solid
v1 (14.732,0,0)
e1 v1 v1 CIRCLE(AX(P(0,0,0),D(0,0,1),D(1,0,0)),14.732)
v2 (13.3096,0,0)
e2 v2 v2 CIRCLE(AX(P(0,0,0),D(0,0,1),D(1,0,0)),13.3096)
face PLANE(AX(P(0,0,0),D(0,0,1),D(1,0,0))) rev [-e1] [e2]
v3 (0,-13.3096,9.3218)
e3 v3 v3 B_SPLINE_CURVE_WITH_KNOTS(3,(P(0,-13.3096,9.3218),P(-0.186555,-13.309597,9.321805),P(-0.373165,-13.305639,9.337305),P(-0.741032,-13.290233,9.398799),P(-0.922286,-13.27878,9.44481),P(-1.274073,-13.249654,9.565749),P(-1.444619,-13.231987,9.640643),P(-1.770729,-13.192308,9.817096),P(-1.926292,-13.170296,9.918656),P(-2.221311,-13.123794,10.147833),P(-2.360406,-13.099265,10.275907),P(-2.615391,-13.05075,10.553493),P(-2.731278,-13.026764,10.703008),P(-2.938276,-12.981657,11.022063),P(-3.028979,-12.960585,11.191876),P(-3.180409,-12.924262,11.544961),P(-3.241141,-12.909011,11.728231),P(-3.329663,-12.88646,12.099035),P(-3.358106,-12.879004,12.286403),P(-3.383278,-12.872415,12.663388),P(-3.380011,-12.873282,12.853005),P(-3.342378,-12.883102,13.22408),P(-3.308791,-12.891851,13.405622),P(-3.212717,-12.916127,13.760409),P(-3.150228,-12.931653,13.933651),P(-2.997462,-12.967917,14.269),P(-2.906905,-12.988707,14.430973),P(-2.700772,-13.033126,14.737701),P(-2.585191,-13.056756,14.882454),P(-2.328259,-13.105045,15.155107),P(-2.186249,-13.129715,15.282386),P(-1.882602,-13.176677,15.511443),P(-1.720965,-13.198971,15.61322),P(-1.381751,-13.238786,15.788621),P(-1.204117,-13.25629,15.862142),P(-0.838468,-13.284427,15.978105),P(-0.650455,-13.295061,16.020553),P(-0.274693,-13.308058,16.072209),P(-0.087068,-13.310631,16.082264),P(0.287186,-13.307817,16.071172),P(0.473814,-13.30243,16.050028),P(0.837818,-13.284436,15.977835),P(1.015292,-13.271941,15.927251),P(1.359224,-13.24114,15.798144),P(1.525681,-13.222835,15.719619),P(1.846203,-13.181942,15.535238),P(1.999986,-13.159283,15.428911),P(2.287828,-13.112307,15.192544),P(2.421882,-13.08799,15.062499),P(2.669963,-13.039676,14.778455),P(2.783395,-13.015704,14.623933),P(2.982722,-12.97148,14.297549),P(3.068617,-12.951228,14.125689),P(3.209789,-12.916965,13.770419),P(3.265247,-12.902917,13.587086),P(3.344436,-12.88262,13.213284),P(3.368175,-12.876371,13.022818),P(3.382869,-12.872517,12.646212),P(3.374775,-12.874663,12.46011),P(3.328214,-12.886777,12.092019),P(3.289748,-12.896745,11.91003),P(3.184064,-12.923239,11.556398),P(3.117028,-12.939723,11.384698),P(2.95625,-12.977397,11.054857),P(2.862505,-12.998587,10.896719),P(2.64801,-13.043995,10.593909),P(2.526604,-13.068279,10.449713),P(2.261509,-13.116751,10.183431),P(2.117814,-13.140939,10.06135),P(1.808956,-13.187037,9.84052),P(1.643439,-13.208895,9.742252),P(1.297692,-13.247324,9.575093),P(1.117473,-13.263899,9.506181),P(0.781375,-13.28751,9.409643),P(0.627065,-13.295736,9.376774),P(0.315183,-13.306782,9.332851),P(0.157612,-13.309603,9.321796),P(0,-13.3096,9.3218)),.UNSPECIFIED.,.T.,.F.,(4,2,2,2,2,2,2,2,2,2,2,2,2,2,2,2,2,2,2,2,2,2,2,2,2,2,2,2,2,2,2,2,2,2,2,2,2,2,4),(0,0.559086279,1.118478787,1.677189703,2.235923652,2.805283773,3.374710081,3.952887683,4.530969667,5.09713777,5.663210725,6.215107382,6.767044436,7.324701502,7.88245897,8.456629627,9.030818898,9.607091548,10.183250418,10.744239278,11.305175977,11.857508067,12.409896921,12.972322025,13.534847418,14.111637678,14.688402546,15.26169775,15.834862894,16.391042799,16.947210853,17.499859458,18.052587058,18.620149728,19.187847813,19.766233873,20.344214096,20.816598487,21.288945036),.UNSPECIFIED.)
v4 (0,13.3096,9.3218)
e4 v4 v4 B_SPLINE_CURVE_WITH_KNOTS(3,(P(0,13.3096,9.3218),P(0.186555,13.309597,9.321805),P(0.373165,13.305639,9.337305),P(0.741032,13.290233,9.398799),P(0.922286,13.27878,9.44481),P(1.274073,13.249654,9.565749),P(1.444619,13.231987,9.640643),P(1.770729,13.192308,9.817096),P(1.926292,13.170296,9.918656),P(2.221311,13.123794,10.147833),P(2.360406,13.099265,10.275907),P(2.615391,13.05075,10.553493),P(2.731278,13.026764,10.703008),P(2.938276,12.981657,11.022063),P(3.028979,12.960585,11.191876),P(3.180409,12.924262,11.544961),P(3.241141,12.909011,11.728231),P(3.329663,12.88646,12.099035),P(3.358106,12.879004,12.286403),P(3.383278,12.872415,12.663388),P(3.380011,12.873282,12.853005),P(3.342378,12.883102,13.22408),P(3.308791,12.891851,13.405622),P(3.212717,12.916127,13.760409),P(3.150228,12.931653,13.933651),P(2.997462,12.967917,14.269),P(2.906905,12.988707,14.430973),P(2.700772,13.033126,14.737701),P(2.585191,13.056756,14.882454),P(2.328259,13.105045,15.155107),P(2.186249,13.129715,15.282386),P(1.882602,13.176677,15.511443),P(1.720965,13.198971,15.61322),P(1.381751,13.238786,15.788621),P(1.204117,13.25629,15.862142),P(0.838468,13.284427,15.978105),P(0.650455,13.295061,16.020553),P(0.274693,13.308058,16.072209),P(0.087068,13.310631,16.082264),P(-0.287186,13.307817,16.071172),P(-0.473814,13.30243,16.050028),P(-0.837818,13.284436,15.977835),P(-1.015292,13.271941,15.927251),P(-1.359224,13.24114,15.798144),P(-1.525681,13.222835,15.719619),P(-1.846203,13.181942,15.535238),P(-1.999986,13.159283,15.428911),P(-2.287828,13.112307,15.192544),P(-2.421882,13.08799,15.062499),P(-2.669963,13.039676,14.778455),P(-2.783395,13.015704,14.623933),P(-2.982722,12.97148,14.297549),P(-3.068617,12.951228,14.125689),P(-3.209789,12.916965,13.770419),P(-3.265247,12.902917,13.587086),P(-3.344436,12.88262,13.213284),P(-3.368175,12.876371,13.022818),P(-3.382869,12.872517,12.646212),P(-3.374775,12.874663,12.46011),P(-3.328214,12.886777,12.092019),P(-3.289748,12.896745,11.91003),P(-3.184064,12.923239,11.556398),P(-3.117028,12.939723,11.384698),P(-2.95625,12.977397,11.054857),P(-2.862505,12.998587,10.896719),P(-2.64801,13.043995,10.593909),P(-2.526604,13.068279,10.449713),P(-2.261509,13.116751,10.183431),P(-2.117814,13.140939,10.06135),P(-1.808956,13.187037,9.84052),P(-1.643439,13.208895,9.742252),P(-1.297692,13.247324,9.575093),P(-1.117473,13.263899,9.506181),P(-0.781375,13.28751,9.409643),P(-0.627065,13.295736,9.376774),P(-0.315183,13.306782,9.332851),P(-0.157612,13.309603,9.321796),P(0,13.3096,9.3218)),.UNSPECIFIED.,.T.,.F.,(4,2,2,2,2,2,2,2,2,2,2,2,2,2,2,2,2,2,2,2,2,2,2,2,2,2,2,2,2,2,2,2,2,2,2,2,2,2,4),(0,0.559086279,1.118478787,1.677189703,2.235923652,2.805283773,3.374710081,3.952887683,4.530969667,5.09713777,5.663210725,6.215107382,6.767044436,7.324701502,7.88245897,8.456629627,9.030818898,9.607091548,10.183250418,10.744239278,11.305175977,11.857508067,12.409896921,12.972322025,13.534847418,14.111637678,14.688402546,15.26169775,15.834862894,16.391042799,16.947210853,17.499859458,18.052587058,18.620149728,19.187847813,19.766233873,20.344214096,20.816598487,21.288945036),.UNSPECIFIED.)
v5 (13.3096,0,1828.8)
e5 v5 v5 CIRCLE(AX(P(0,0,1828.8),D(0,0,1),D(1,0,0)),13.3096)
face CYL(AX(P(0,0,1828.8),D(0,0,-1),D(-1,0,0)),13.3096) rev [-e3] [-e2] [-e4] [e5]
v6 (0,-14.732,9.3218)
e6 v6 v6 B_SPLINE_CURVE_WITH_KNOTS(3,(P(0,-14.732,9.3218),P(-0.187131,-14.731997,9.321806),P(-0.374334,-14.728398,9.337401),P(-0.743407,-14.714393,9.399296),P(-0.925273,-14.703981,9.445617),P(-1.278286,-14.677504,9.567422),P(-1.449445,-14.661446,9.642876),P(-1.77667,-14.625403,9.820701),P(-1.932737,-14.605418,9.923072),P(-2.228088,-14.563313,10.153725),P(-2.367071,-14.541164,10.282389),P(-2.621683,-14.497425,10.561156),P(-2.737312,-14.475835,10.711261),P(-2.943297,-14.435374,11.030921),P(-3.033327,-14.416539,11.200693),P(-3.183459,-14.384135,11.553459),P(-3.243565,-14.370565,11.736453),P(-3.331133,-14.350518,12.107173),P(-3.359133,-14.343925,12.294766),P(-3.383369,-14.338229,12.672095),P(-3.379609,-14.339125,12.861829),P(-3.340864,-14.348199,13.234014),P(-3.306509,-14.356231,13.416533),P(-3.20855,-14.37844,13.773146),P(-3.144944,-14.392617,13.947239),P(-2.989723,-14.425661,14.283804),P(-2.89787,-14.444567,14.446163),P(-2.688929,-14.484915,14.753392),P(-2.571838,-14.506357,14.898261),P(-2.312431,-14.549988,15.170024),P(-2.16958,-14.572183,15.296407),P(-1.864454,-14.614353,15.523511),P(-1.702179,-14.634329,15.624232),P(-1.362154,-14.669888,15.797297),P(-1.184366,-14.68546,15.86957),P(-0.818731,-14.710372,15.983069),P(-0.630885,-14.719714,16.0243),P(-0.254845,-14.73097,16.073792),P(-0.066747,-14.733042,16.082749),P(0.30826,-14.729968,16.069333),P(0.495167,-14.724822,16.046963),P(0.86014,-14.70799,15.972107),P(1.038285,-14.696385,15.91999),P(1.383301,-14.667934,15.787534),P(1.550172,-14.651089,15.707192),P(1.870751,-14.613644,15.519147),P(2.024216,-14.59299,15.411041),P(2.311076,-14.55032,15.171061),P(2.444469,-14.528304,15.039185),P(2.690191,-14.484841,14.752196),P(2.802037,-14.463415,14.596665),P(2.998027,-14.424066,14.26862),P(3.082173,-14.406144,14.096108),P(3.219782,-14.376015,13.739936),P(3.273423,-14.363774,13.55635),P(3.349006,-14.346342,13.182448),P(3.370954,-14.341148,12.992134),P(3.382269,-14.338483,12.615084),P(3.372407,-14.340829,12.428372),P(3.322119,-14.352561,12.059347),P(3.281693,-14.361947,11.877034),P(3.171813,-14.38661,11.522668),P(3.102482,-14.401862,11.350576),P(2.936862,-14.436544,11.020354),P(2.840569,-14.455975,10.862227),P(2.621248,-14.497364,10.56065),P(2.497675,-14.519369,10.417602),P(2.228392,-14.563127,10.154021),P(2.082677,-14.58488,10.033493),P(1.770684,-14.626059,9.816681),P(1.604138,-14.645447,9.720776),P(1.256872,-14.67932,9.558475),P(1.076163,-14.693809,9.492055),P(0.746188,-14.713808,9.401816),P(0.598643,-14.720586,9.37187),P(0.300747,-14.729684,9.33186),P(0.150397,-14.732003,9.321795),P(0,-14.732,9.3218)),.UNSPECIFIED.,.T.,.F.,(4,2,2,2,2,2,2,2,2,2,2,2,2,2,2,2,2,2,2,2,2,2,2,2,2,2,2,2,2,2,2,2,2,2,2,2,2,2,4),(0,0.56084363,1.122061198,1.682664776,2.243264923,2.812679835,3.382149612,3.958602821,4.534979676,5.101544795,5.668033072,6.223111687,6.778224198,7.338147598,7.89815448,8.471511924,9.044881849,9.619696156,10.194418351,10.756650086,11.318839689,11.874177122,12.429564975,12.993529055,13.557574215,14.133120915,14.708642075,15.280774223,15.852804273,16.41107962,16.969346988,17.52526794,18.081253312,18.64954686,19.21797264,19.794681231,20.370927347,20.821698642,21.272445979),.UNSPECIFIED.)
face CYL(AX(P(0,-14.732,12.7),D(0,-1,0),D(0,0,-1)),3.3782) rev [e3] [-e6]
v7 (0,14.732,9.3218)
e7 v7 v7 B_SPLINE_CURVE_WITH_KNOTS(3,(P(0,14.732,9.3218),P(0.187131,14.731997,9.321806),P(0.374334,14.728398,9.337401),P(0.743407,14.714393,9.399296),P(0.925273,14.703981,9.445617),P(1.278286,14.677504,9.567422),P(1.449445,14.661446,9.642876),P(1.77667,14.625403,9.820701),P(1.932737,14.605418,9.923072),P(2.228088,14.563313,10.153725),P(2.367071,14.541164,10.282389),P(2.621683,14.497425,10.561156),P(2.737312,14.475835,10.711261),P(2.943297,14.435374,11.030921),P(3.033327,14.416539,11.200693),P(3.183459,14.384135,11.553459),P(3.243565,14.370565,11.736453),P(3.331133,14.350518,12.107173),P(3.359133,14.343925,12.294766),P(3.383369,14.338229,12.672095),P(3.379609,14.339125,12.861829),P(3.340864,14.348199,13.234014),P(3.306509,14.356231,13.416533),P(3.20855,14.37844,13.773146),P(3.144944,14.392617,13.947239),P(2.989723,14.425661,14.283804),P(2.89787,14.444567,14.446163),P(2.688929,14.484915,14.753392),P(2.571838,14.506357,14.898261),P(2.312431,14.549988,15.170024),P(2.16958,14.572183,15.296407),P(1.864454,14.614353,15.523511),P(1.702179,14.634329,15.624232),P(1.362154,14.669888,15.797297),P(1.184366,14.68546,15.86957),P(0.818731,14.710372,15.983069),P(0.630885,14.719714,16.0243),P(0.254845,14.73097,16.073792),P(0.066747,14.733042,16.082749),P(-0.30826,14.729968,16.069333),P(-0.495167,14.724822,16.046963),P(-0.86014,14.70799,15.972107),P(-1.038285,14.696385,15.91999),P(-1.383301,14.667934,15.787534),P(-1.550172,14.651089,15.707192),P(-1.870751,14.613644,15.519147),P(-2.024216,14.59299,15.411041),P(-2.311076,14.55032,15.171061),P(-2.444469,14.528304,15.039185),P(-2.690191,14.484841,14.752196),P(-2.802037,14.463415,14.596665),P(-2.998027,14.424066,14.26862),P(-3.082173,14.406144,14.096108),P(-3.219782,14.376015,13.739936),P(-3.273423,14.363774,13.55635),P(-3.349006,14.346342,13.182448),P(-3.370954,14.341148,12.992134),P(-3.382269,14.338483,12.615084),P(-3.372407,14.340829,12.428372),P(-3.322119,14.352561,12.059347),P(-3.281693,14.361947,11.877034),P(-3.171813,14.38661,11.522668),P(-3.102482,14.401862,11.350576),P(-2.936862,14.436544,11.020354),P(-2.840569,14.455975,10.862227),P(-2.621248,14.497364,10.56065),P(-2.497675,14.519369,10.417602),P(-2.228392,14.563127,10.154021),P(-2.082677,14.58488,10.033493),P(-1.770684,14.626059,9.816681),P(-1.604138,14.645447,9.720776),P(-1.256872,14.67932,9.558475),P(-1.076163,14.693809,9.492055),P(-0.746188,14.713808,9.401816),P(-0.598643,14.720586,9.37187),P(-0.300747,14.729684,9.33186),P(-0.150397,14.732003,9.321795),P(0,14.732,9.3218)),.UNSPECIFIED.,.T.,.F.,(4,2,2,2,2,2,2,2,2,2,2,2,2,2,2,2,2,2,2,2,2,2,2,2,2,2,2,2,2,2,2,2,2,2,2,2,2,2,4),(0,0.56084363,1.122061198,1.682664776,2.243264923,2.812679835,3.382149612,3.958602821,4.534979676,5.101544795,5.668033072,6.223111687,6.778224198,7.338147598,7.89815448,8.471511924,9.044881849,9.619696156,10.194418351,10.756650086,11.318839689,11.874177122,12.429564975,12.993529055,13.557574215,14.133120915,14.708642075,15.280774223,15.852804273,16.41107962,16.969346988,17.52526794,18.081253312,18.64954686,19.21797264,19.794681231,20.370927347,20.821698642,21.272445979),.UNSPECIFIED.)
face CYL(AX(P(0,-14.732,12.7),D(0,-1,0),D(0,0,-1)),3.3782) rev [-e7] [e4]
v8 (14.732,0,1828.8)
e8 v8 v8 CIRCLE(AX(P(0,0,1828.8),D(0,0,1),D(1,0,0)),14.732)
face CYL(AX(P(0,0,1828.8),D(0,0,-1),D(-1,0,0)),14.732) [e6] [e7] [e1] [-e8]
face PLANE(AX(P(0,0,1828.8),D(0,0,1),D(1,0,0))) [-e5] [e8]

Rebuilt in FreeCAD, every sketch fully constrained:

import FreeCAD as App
import Part
import Sketcher

V = App.Vector
Q = App.Units.Quantity

doc = App.newDocument("Part")
params = doc.addObject("Spreadsheet::Sheet", "Params")
for row, (alias, value) in enumerate([
    ("sketch1_diameter", "1.16 in"),
    ("sketch1_diameter2", "1.048 in"),
    ("pad1_length", "72 in"),
    ("sketch2_diameter", "0.266 in"),
    ("hole_diameter", "0.266 in"),
], start=1):
    params.set(f"A{row}", alias)
    params.set(f"B{row}", "=" + value)
    params.setAlias(f"B{row}", alias)

body = doc.addObject("PartDesign::Body", "Body")

# Sketch on XY plane
sketch1 = doc.addObject("Sketcher::SketchObject", "Sketch")
body.addObject(sketch1)
sketch1.AttachmentSupport = (doc.XY_Plane, [""])
sketch1.MapMode = "FlatFace"
sketch1.addGeometry(Part.Circle(V(0, 0, 0), V(0, 0, 1), 15), False)
sketch1.addGeometry(Part.Circle(V(0, 0, 0), V(0, 0, 1), 13), False)
sketch1.addConstraint(Sketcher.Constraint("Coincident", 0, 3, -1, 1))
sketch1.addConstraint(Sketcher.Constraint("Coincident", 1, 3, -1, 1))
sketch1.addConstraint(Sketcher.Constraint("Diameter", 0, Q("1.16 in")))
sketch1.addConstraint(Sketcher.Constraint("Diameter", 1, Q("1.048 in")))
sketch1.setExpression("Constraints[2]", "Params.sketch1_diameter")
sketch1.setExpression("Constraints[3]", "Params.sketch1_diameter2")
pad1 = doc.addObject("PartDesign::Pad", "Pad")
body.addObject(pad1)
pad1.Profile = sketch1
pad1.setExpression("Length", "Params.pad1_length")

# Sketch on XZ plane
sketch2 = doc.addObject("Sketcher::SketchObject", "Sketch001")
body.addObject(sketch2)
sketch2.AttachmentSupport = (doc.XZ_Plane, [""])
sketch2.MapMode = "FlatFace"
sketch2.AttachmentOffset = App.Placement(V(0, 0, 0.58 * 25.4), App.Rotation())
sketch2.addGeometry(Part.Circle(V(0, 12.7, 0), V(0, 0, 1), 3.4), False)
sketch2.addConstraint(Sketcher.Constraint("PointOnObject", 0, 3, -2))
sketch2.addConstraint(Sketcher.Constraint("Diameter", 0, Q("0.266 in")))
sketch2.addConstraint(Sketcher.Constraint("DistanceY", -1, 1, 0, 3, Q("0.5 in")))
sketch2.setExpression("Constraints[1]", "Params.sketch2_diameter")
doc.recompute()
hole = doc.addObject("PartDesign::Hole", "Hole")
body.addObject(hole)
hole.Profile = sketch2
hole.ThreadType = "None"
hole.setExpression("Diameter", "Params.hole_diameter")
hole.DepthType = "ThroughAll"

doc.recompute()
